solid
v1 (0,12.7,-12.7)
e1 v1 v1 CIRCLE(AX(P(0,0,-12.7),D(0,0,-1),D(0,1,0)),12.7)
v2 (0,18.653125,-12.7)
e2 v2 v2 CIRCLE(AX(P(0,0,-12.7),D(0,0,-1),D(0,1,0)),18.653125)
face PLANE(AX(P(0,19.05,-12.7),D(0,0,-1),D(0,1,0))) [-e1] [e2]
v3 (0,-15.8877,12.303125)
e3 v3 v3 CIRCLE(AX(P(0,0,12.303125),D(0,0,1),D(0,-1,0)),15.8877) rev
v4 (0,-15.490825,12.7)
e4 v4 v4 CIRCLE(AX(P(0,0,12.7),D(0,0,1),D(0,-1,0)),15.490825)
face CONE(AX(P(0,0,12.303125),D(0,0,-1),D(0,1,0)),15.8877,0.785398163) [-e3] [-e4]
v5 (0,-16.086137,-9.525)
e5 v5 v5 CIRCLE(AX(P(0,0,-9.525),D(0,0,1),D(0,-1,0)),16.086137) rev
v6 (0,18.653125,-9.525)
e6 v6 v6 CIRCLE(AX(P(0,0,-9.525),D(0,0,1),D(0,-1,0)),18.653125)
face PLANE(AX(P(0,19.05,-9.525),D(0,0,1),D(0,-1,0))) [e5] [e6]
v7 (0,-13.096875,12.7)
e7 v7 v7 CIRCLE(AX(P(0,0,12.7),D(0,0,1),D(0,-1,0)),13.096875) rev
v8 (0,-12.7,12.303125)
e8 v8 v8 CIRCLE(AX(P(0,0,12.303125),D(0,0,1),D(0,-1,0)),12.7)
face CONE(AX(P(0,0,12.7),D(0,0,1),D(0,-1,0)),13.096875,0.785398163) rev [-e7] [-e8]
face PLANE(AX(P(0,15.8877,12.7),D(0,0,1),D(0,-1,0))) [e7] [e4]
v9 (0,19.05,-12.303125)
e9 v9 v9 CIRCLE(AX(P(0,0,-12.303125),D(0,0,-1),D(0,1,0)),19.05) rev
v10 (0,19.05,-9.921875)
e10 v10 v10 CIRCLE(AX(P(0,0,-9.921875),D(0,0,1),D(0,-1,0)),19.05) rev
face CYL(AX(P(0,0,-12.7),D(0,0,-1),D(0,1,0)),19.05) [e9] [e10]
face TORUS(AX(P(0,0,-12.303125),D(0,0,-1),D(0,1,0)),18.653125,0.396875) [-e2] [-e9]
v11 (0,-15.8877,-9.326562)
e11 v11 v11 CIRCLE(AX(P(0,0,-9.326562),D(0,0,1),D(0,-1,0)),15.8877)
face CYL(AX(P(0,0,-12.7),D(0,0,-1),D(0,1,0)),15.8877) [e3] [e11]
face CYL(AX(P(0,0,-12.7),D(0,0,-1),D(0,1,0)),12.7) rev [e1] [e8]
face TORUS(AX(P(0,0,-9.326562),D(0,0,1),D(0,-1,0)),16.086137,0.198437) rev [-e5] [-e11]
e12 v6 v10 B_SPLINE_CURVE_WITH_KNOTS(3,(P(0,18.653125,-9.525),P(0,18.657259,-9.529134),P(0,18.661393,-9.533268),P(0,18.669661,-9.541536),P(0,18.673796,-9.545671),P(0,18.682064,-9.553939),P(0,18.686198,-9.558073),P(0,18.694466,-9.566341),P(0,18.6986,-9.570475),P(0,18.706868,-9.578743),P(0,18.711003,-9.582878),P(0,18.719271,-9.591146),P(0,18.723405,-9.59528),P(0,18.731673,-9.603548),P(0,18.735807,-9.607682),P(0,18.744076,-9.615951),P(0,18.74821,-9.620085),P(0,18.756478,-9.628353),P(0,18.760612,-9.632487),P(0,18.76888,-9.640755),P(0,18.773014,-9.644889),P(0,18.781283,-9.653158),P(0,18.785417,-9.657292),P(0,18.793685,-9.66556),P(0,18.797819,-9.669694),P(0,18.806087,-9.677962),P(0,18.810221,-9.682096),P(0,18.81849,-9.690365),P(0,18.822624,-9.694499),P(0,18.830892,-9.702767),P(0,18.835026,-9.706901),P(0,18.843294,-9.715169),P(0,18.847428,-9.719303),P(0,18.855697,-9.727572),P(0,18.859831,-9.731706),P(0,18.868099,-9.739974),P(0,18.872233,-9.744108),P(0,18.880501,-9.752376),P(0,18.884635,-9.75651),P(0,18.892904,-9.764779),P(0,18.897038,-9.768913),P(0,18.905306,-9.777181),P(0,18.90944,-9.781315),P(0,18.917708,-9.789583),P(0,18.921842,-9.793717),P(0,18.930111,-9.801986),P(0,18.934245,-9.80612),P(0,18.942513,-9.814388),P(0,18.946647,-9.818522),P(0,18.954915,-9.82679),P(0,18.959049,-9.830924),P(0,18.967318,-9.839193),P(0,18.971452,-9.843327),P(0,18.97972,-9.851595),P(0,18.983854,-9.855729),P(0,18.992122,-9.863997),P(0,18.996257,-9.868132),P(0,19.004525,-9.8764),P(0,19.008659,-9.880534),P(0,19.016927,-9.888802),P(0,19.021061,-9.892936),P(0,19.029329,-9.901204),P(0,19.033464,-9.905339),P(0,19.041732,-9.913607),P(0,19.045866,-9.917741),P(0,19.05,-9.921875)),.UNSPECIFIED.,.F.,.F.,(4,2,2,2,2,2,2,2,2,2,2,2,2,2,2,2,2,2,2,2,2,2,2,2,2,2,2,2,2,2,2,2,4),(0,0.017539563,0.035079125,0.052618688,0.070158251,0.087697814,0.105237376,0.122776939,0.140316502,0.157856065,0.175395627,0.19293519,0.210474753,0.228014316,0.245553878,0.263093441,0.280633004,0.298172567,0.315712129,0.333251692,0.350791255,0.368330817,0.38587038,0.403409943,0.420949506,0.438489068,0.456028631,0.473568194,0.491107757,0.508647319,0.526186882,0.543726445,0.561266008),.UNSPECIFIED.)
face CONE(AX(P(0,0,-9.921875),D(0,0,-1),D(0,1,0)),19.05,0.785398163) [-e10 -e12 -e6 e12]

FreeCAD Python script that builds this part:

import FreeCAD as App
import Part
import Sketcher
from FreeCAD import Vector
Q = App.Units.Quantity


def edges_at(feature, points):
    """Names of the edges that pass closest to the given points."""
    edges = feature.Shape.Edges
    near = lambda p: min(range(len(edges)), key=lambda i: edges[i].distToShape(Part.Vertex(*p))[0])
    return sorted({f"Edge{near(p) + 1}" for p in points})


def add_polygon(sketch, points):
    """Adds a closed chain of lines whose ends are joined by coincident constraints."""
    first, n = sketch.GeometryCount, len(points)
    for a, b in zip(points, points[1:] + points[:1]):
        sketch.addGeometry(Part.LineSegment(App.Vector(*a, 0), App.Vector(*b, 0)), False)
    for i in range(n):
        sketch.addConstraint(Sketcher.Constraint("Coincident", first + i, 2, first + (i + 1) % n, 1))

doc = App.newDocument("Part")
body = doc.addObject("PartDesign::Body", "Body")

# Sketch on YZ plane
sketch1 = body.newObject("Sketcher::SketchObject", "Sketch")
sketch1.AttachmentSupport = (doc.getObject("YZ_Plane"), [""])
sketch1.MapMode = "FlatFace"
add_polygon(sketch1, [(19.1, -12.7), (19.1, -9.5), (15.9, -9.5), (15.9, 12.7), (12.7, 12.7), (12.7, -12.7)])  # lines 0-5
sketch1.addConstraint([
    Sketcher.Constraint("Vertical", 0),
    Sketcher.Constraint("Horizontal", 1),
    Sketcher.Constraint("Vertical", 2),
    Sketcher.Constraint("Horizontal", 3),
    Sketcher.Constraint("Vertical", 4),
    Sketcher.Constraint("Horizontal", 5),
    Sketcher.Constraint("DistanceY", 4, 2, 4, 1, Q("1 in")),
    Sketcher.Constraint("DistanceX", 5, 1, 5, 2, Q("0.25 in")),
    Sketcher.Constraint("DistanceY", -1, 1, 2, 2, Q("0.5 in")),
    Sketcher.Constraint("DistanceX", -1, 1, 3, 2, Q("0.5 in")),
    Sketcher.Constraint("DistanceY", 0, 1, 0, 2, Q("0.125 in")),
    Sketcher.Constraint("DistanceX", 1, 2, 1, 1, Q("0.1245 in")),
])
revolution = body.newObject("PartDesign::Revolution", "Revolution")
revolution.Profile = sketch1
revolution.ReferenceAxis = (sketch1, ["V_Axis"])
revolution.Angle = 360
doc.recompute()

chamfer = body.newObject("PartDesign::Chamfer", "Chamfer")
chamfer.Base = (revolution, edges_at(revolution, [(0, -12.7, 12.7), (0, -15.888, 12.7), (0, -19.05, -9.525)]))
chamfer.Size = Q("0.015625 in")
doc.recompute()

fillet = body.newObject("PartDesign::Fillet", "Fillet")
fillet.Base = (chamfer, edges_at(chamfer, [(0, -19.05, -12.7)]))
fillet.Radius = Q("0.015625 in")
doc.recompute()

fillet2 = body.newObject("PartDesign::Fillet", "Fillet001")
fillet2.Base = (fillet, edges_at(fillet, [(0, -15.888, -9.525)]))
fillet2.Radius = 0.198437

doc.recompute()
